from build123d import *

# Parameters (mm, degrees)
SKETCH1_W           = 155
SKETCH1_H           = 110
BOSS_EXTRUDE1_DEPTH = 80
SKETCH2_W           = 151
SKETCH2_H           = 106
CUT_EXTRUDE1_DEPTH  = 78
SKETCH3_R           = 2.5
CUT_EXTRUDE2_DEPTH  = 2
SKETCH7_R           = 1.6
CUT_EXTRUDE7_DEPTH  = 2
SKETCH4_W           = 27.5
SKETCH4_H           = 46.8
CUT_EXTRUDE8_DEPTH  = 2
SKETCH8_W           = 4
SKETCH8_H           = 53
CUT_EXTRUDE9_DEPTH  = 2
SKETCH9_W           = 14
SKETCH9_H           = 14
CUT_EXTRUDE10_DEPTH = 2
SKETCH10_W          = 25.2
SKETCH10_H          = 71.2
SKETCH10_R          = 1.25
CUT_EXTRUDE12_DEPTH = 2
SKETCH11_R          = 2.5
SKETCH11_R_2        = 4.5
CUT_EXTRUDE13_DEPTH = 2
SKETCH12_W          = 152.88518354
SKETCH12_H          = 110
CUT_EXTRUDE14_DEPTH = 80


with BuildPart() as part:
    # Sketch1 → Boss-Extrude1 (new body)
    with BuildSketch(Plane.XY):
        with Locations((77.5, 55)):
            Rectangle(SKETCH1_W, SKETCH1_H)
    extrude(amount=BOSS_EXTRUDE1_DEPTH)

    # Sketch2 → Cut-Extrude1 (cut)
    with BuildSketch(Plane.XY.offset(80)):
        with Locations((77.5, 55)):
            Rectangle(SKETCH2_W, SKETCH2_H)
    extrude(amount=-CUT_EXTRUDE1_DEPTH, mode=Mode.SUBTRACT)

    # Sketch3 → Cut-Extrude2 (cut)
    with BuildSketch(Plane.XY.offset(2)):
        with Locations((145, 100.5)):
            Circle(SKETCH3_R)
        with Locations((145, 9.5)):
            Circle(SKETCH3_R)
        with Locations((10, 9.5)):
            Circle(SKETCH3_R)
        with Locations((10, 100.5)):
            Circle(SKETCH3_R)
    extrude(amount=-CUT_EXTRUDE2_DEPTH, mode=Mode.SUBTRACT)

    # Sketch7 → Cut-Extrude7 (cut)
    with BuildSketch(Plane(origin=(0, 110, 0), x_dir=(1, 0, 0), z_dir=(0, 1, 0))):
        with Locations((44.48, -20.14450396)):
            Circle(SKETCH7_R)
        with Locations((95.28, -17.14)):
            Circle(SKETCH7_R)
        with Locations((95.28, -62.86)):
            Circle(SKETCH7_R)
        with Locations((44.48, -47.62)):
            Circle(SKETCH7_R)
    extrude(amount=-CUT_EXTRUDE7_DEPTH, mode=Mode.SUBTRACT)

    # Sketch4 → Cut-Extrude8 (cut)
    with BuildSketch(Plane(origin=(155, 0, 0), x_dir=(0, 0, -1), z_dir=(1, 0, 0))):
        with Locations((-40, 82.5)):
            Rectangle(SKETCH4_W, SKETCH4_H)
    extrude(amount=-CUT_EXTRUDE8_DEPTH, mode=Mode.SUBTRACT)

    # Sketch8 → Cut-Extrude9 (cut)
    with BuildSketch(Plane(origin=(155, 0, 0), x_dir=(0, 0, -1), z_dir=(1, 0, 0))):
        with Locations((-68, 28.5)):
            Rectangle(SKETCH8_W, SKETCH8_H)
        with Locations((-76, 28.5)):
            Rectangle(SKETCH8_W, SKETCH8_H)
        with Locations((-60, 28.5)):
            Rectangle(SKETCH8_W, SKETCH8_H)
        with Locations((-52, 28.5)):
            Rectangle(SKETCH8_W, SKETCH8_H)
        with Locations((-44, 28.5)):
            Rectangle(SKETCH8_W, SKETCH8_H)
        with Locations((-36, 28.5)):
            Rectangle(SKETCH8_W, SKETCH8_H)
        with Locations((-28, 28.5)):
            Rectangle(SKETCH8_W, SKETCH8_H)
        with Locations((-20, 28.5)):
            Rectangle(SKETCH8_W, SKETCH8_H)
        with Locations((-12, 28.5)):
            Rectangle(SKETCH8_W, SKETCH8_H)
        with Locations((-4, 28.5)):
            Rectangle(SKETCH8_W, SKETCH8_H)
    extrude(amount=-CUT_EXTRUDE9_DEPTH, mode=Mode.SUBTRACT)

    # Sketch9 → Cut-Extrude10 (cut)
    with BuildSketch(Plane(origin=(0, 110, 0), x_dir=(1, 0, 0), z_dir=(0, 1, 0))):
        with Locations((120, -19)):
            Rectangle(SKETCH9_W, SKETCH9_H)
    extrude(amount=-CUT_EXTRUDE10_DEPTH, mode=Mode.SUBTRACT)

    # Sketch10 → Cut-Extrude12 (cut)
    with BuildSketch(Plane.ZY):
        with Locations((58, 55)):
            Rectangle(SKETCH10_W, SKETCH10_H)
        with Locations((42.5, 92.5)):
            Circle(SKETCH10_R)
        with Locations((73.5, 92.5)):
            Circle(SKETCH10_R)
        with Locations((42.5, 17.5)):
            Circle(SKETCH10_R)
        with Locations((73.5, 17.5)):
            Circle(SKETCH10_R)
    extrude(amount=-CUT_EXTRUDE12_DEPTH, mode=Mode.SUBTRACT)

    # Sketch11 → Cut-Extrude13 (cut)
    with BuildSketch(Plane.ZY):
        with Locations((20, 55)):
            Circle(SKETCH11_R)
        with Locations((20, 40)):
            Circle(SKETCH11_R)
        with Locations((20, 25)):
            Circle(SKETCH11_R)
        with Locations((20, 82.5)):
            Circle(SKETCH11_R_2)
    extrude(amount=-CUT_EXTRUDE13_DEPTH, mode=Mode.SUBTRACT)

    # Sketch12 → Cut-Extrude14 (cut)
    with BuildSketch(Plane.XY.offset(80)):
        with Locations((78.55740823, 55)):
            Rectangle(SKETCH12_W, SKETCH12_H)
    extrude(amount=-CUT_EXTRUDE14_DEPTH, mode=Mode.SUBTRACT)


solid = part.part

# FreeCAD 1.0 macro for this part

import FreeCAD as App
import Part
import Sketcher
from FreeCAD import Vector
Q = App.Units.Quantity


def add_polygon(sketch, points):
    """Adds a closed chain of lines whose ends are joined by coincident constraints."""
    first, n = sketch.GeometryCount, len(points)
    for a, b in zip(points, points[1:] + points[:1]):
        sketch.addGeometry(Part.LineSegment(App.Vector(*a, 0), App.Vector(*b, 0)), False)
    for i in range(n):
        sketch.addConstraint(Sketcher.Constraint("Coincident", first + i, 2, first + (i + 1) % n, 1))

doc = App.newDocument("Part")
body = doc.addObject("PartDesign::Body", "Body")

sketch1 = body.newObject("Sketcher::SketchObject", "Sketch")
sketch1.AttachmentSupport = (doc.getObject("XY_Plane"), [""])
sketch1.MapMode = "FlatFace"
add_polygon(sketch1, [(0, 110), (0, 0), (155, 0), (155, 110)])
sketch1.addConstraint(Sketcher.Constraint("Vertical", 0))
sketch1.addConstraint(Sketcher.Constraint("Horizontal", 1))
sketch1.addConstraint(Sketcher.Constraint("Vertical", 2))
sketch1.addConstraint(Sketcher.Constraint("Horizontal", 3))
sketch1.addConstraint(Sketcher.Constraint("Coincident", 0, 2, -1, 1))
sketch1.addConstraint(Sketcher.Constraint("DistanceX", 1, 1, 1, 2, Q("155 mm")))
sketch1.addConstraint(Sketcher.Constraint("DistanceY", 0, 2, 0, 1, Q("110 mm")))
pad1 = body.newObject("PartDesign::Pad", "Pad")
pad1.Profile = sketch1
pad1.Length = 80

sketch2 = body.newObject("Sketcher::SketchObject", "Sketch001")
sketch2.AttachmentSupport = (doc.getObject("XY_Plane"), [""])
sketch2.MapMode = "FlatFace"
sketch2.AttachmentOffset = App.Placement(Vector(0, 0, 80), App.Rotation())
add_polygon(sketch2, [(2, 108), (2, 2), (153, 2), (153, 108)])
sketch2.addConstraint(Sketcher.Constraint("Vertical", 0))
sketch2.addConstraint(Sketcher.Constraint("Horizontal", 1))
sketch2.addConstraint(Sketcher.Constraint("Vertical", 2))
sketch2.addConstraint(Sketcher.Constraint("Horizontal", 3))
sketch2.addConstraint(Sketcher.Constraint("DistanceX", 1, 1, 1, 2, Q("151 mm")))
sketch2.addConstraint(Sketcher.Constraint("DistanceY", 0, 2, 0, 1, Q("106 mm")))
sketch2.addConstraint(Sketcher.Constraint("DistanceX", -1, 1, 0, 2, Q("2 mm")))
sketch2.addConstraint(Sketcher.Constraint("DistanceY", -1, 1, 0, 2, Q("2 mm")))
pocket1 = body.newObject("PartDesign::Pocket", "Pocket")
pocket1.Profile = sketch2
pocket1.Length = 78

sketch3 = body.newObject("Sketcher::SketchObject", "Sketch002")
sketch3.AttachmentSupport = (doc.getObject("XY_Plane"), [""])
sketch3.MapMode = "FlatFace"
sketch3.AttachmentOffset = App.Placement(Vector(0, 0, 2), App.Rotation())
sketch3.addGeometry(Part.Circle(Vector(145, 100.5, 0), Vector(0, 0, 1), 2.5), False)
sketch3.addGeometry(Part.Circle(Vector(145, 9.5, 0), Vector(0, 0, 1), 2.5), False)
sketch3.addGeometry(Part.Circle(Vector(10, 9.5, 0), Vector(0, 0, 1), 2.5), False)
sketch3.addGeometry(Part.Circle(Vector(10, 100.5, 0), Vector(0, 0, 1), 2.5), False)
sketch3.addConstraint(Sketcher.Constraint("Equal", 0, 1))
sketch3.addConstraint(Sketcher.Constraint("Equal", 1, 2))
sketch3.addConstraint(Sketcher.Constraint("Equal", 2, 3))
sketch3.addConstraint(Sketcher.Constraint("Horizontal", 1, 3, 2, 3))
sketch3.addConstraint(Sketcher.Constraint("Horizontal", 0, 3, 3, 3))
sketch3.addConstraint(Sketcher.Constraint("Vertical", 0, 3, 1, 3))
sketch3.addConstraint(Sketcher.Constraint("Vertical", 2, 3, 3, 3))
sketch3.addConstraint(Sketcher.Constraint("Diameter", 0, Q("5 mm")))
sketch3.addConstraint(Sketcher.Constraint("DistanceX", -1, 1, 0, 3, Q("145 mm")))
sketch3.addConstraint(Sketcher.Constraint("DistanceX", -1, 1, 2, 3, Q("10 mm")))
sketch3.addConstraint(Sketcher.Constraint("DistanceY", 1, 3, 0, 3, Q("91 mm")))
sketch3.addConstraint(Sketcher.Constraint("DistanceY", -1, 1, 0, 3, Q("100.5 mm")))
pocket2 = body.newObject("PartDesign::Pocket", "Pocket001")
pocket2.Profile = sketch3
pocket2.Length = 2

sketch4 = body.newObject("Sketcher::SketchObject", "Sketch003")
sketch4.AttachmentSupport = (doc.getObject("XZ_Plane"), [""])
sketch4.MapMode = "FlatFace"
sketch4.AttachmentOffset = App.Placement(Vector(0, 0, -110), App.Rotation())
sketch4.addGeometry(Part.Circle(Vector(44.5, 20.1, 0), Vector(0, 0, 1), 1.6), False)
sketch4.addGeometry(Part.Circle(Vector(95.3, 17.1, 0), Vector(0, 0, 1), 1.6), False)
sketch4.addGeometry(Part.Circle(Vector(95.3, 62.9, 0), Vector(0, 0, 1), 1.6), False)
sketch4.addGeometry(Part.Circle(Vector(44.5, 47.6, 0), Vector(0, 0, 1), 1.6), False)
sketch4.addConstraint(Sketcher.Constraint("Equal", 0, 1))
sketch4.addConstraint(Sketcher.Constraint("Equal", 1, 2))
sketch4.addConstraint(Sketcher.Constraint("Equal", 2, 3))
sketch4.addConstraint(Sketcher.Constraint("Vertical", 1, 3, 2, 3))
sketch4.addConstraint(Sketcher.Constraint("Vertical", 0, 3, 3, 3))
sketch4.addConstraint(Sketcher.Constraint("Diameter", 0, Q("3.2 mm")))
sketch4.addConstraint(Sketcher.Constraint("DistanceX", 0, 3, 1, 3, Q("50.8 mm")))
sketch4.addConstraint(Sketcher.Constraint("DistanceX", -1, 1, 0, 3, Q("44.48 mm")))
sketch4.addConstraint(Sketcher.Constraint("DistanceY", -1, 1, 1, 3, Q("17.14 mm")))
sketch4.addConstraint(Sketcher.Constraint("DistanceY", -1, 1, 2, 3, Q("62.86 mm")))
sketch4.addConstraint(Sketcher.Constraint("DistanceY", -1, 1, 3, 3, Q("47.62 mm")))
sketch4.addConstraint(Sketcher.Constraint("DistanceY", -1, 1, 0, 3, Q("20.144504 mm")))
pocket3 = body.newObject("PartDesign::Pocket", "Pocket002")
pocket3.Profile = sketch4
pocket3.Length = 2
pocket3.Reversed = True

sketch5 = body.newObject("Sketcher::SketchObject", "Sketch004")
sketch5.AttachmentSupport = (doc.getObject("YZ_Plane"), [""])
sketch5.MapMode = "FlatFace"
sketch5.AttachmentOffset = App.Placement(Vector(0, 0, 155), App.Rotation())
add_polygon(sketch5, [(106, 54), (59, 54), (59, 26), (106, 26)])
sketch5.addConstraint(Sketcher.Constraint("Horizontal", 0))
sketch5.addConstraint(Sketcher.Constraint("Vertical", 1))
sketch5.addConstraint(Sketcher.Constraint("Horizontal", 2))
sketch5.addConstraint(Sketcher.Constraint("Vertical", 3))
sketch5.addConstraint(Sketcher.Constraint("DistanceX", 0, 2, 0, 1, Q("46.8 mm")))
sketch5.addConstraint(Sketcher.Constraint("DistanceY", 1, 2, 1, 1, Q("27.5 mm")))
sketch5.addConstraint(Sketcher.Constraint("DistanceX", -1, 1, 0, 2, Q("59.1 mm")))
sketch5.addConstraint(Sketcher.Constraint("DistanceY", -1, 1, 0, 2, Q("53.75 mm")))
pocket4 = body.newObject("PartDesign::Pocket", "Pocket003")
pocket4.Profile = sketch5
pocket4.Length = 2

sketch6 = body.newObject("Sketcher::SketchObject", "Sketch005")
sketch6.AttachmentSupport = (doc.getObject("YZ_Plane"), [""])
sketch6.MapMode = "FlatFace"
sketch6.AttachmentOffset = App.Placement(Vector(0, 0, 155), App.Rotation())
add_polygon(sketch6, [(55, 70), (2, 70), (2, 66), (55, 66)])
add_polygon(sketch6, [(55, 78), (2, 78), (2, 74), (55, 74)])
add_polygon(sketch6, [(55, 62), (2, 62), (2, 58), (55, 58)])
add_polygon(sketch6, [(55, 54), (2, 54), (2, 50), (55, 50)])
add_polygon(sketch6, [(55, 46), (2, 46), (2, 42), (55, 42)])
add_polygon(sketch6, [(55, 38), (2, 38), (2, 34), (55, 34)])
add_polygon(sketch6, [(55, 30), (2, 30), (2, 26), (55, 26)])
add_polygon(sketch6, [(55, 22), (2, 22), (2, 18), (55, 18)])
add_polygon(sketch6, [(55, 14), (2, 14), (2, 10), (55, 10)])
add_polygon(sketch6, [(55, 6), (2, 6), (2, 2), (55, 2)])
sketch6.addConstraint(Sketcher.Constraint("Horizontal", 0))
sketch6.addConstraint(Sketcher.Constraint("Vertical", 1))
sketch6.addConstraint(Sketcher.Constraint("Horizontal", 2))
sketch6.addConstraint(Sketcher.Constraint("Vertical", 3))
sketch6.addConstraint(Sketcher.Constraint("Horizontal", 4))
sketch6.addConstraint(Sketcher.Constraint("Vertical", 5))
sketch6.addConstraint(Sketcher.Constraint("Horizontal", 6))
sketch6.addConstraint(Sketcher.Constraint("Vertical", 7))
sketch6.addConstraint(Sketcher.Constraint("Horizontal", 8))
sketch6.addConstraint(Sketcher.Constraint("Vertical", 9))
sketch6.addConstraint(Sketcher.Constraint("Horizontal", 10))
sketch6.addConstraint(Sketcher.Constraint("Vertical", 11))
sketch6.addConstraint(Sketcher.Constraint("Horizontal", 12))
sketch6.addConstraint(Sketcher.Constraint("Vertical", 13))
sketch6.addConstraint(Sketcher.Constraint("Horizontal", 14))
sketch6.addConstraint(Sketcher.Constraint("Vertical", 15))
sketch6.addConstraint(Sketcher.Constraint("Horizontal", 16))
sketch6.addConstraint(Sketcher.Constraint("Vertical", 17))
sketch6.addConstraint(Sketcher.Constraint("Horizontal", 18))
sketch6.addConstraint(Sketcher.Constraint("Vertical", 19))
sketch6.addConstraint(Sketcher.Constraint("Horizontal", 20))
sketch6.addConstraint(Sketcher.Constraint("Vertical", 21))
sketch6.addConstraint(Sketcher.Constraint("Horizontal", 22))
sketch6.addConstraint(Sketcher.Constraint("Vertical", 23))
sketch6.addConstraint(Sketcher.Constraint("Horizontal", 24))
sketch6.addConstraint(Sketcher.Constraint("Vertical", 25))
sketch6.addConstraint(Sketcher.Constraint("Horizontal", 26))
sketch6.addConstraint(Sketcher.Constraint("Vertical", 27))
sketch6.addConstraint(Sketcher.Constraint("Horizontal", 28))
sketch6.addConstraint(Sketcher.Constraint("Vertical", 29))
sketch6.addConstraint(Sketcher.Constraint("Horizontal", 30))
sketch6.addConstraint(Sketcher.Constraint("Vertical", 31))
sketch6.addConstraint(Sketcher.Constraint("Horizontal", 32))
sketch6.addConstraint(Sketcher.Constraint("Vertical", 33))
sketch6.addConstraint(Sketcher.Constraint("Horizontal", 34))
sketch6.addConstraint(Sketcher.Constraint("Vertical", 35))
sketch6.addConstraint(Sketcher.Constraint("Horizontal", 36))
sketch6.addConstraint(Sketcher.Constraint("Vertical", 37))
sketch6.addConstraint(Sketcher.Constraint("Horizontal", 38))
sketch6.addConstraint(Sketcher.Constraint("Vertical", 39))
sketch6.addConstraint(Sketcher.Constraint("Vertical", 1, 2, 4, 2))
sketch6.addConstraint(Sketcher.Constraint("Vertical", 3, 2, 6, 2))
sketch6.addConstraint(Sketcher.Constraint("Vertical", 5, 2, 8, 2))
sketch6.addConstraint(Sketcher.Constraint("Vertical", 7, 2, 10, 2))
sketch6.addConstraint(Sketcher.Constraint("Vertical", 9, 2, 12, 2))
sketch6.addConstraint(Sketcher.Constraint("Vertical", 11, 2, 14, 2))
sketch6.addConstraint(Sketcher.Constraint("Vertical", 13, 2, 16, 2))
sketch6.addConstraint(Sketcher.Constraint("Vertical", 15, 2, 18, 2))
sketch6.addConstraint(Sketcher.Constraint("Vertical", 17, 2, 20, 2))
sketch6.addConstraint(Sketcher.Constraint("Vertical", 19, 2, 22, 2))
sketch6.addConstraint(Sketcher.Constraint("Vertical", 21, 2, 24, 2))
sketch6.addConstraint(Sketcher.Constraint("Vertical", 23, 2, 26, 2))
sketch6.addConstraint(Sketcher.Constraint("Vertical", 25, 2, 28, 2))
sketch6.addConstraint(Sketcher.Constraint("Vertical", 27, 2, 30, 2))
sketch6.addConstraint(Sketcher.Constraint("Vertical", 29, 2, 32, 2))
sketch6.addConstraint(Sketcher.Constraint("Vertical", 31, 2, 34, 2))
sketch6.addConstraint(Sketcher.Constraint("Vertical", 33, 2, 36, 2))
sketch6.addConstraint(Sketcher.Constraint("Vertical", 35, 2, 38, 2))
sketch6.addConstraint(Sketcher.Constraint("Equal", 3, 5))
sketch6.addConstraint(Sketcher.Constraint("Equal", 7, 9))
sketch6.addConstraint(Sketcher.Constraint("Equal", 11, 13))
sketch6.addConstraint(Sketcher.Constraint("Equal", 15, 17))
sketch6.addConstraint(Sketcher.Constraint("Equal", 19, 21))
sketch6.addConstraint(Sketcher.Constraint("Equal", 23, 25))
sketch6.addConstraint(Sketcher.Constraint("Equal", 27, 29))
sketch6.addConstraint(Sketcher.Constraint("Equal", 31, 33))
sketch6.addConstraint(Sketcher.Constraint("Equal", 35, 37))
sketch6.addConstraint(Sketcher.Constraint("DistanceX", 0, 2, 0, 1, Q("53 mm")))
sketch6.addConstraint(Sketcher.Constraint("DistanceY", 1, 2, 1, 1, Q("4 mm")))
sketch6.addConstraint(Sketcher.Constraint("DistanceX", -1, 1, 0, 2, Q("2 mm")))
sketch6.addConstraint(Sketcher.Constraint("DistanceY", -1, 1, 0, 2, Q("70 mm")))
sketch6.addConstraint(Sketcher.Constraint("DistanceY", -1, 1, 4, 2, Q("78 mm")))
sketch6.addConstraint(Sketcher.Constraint("DistanceY", -1, 1, 8, 2, Q("62 mm")))
sketch6.addConstraint(Sketcher.Constraint("DistanceY", -1, 1, 12, 2, Q("54 mm")))
sketch6.addConstraint(Sketcher.Constraint("DistanceY", -1, 1, 16, 2, Q("46 mm")))
sketch6.addConstraint(Sketcher.Constraint("DistanceY", -1, 1, 20, 2, Q("38 mm")))
sketch6.addConstraint(Sketcher.Constraint("DistanceY", -1, 1, 24, 2, Q("30 mm")))
sketch6.addConstraint(Sketcher.Constraint("DistanceY", -1, 1, 28, 2, Q("22 mm")))
sketch6.addConstraint(Sketcher.Constraint("DistanceY", -1, 1, 32, 2, Q("14 mm")))
sketch6.addConstraint(Sketcher.Constraint("DistanceY", -1, 1, 36, 2, Q("6 mm")))
pocket5 = body.newObject("PartDesign::Pocket", "Pocket004")
pocket5.Profile = sketch6
pocket5.Length = 2

sketch7 = body.newObject("Sketcher::SketchObject", "Sketch006")
sketch7.AttachmentSupport = (doc.getObject("XZ_Plane"), [""])
sketch7.MapMode = "FlatFace"
sketch7.AttachmentOffset = App.Placement(Vector(0, 0, -110), App.Rotation())
add_polygon(sketch7, [(113, 12), (113, 26), (127, 26), (127, 12)])
sketch7.addConstraint(Sketcher.Constraint("Vertical", 0))
sketch7.addConstraint(Sketcher.Constraint("Horizontal", 1))
sketch7.addConstraint(Sketcher.Constraint("Vertical", 2))
sketch7.addConstraint(Sketcher.Constraint("Horizontal", 3))
sketch7.addConstraint(Sketcher.Constraint("Equal", 3, 0))
sketch7.addConstraint(Sketcher.Constraint("DistanceX", 1, 1, 1, 2, Q("14 mm")))
sketch7.addConstraint(Sketcher.Constraint("DistanceX", -1, 1, 0, 2, Q("113 mm")))
sketch7.addConstraint(Sketcher.Constraint("DistanceY", -1, 1, 0, 2, Q("26 mm")))
pocket6 = body.newObject("PartDesign::Pocket", "Pocket005")
pocket6.Profile = sketch7
pocket6.Length = 2
pocket6.Reversed = True

sketch8 = body.newObject("Sketcher::SketchObject", "Sketch007")
sketch8.AttachmentSupport = (doc.getObject("YZ_Plane"), [""])
sketch8.MapMode = "FlatFace"
add_polygon(sketch8, [(90.6, 45.4), (19.4, 45.4), (19.4, 70.6), (90.6, 70.6)])
sketch8.addGeometry(Part.Circle(Vector(92.5, 42.5, 0), Vector(0, 0, 1), 1.2), False)
sketch8.addGeometry(Part.Circle(Vector(92.5, 73.5, 0), Vector(0, 0, 1), 1.2), False)
sketch8.addGeometry(Part.Circle(Vector(17.5, 42.5, 0), Vector(0, 0, 1), 1.2), False)
sketch8.addGeometry(Part.Circle(Vector(17.5, 73.5, 0), Vector(0, 0, 1), 1.2), False)
sketch8.addConstraint(Sketcher.Constraint("Horizontal", 0))
sketch8.addConstraint(Sketcher.Constraint("Vertical", 1))
sketch8.addConstraint(Sketcher.Constraint("Horizontal", 2))
sketch8.addConstraint(Sketcher.Constraint("Vertical", 3))
sketch8.addConstraint(Sketcher.Constraint("Equal", 4, 5))
sketch8.addConstraint(Sketcher.Constraint("Equal", 5, 6))
sketch8.addConstraint(Sketcher.Constraint("Equal", 6, 7))
sketch8.addConstraint(Sketcher.Constraint("Horizontal", 4, 3, 6, 3))
sketch8.addConstraint(Sketcher.Constraint("Horizontal", 5, 3, 7, 3))
sketch8.addConstraint(Sketcher.Constraint("Vertical", 4, 3, 5, 3))
sketch8.addConstraint(Sketcher.Constraint("Vertical", 6, 3, 7, 3))
sketch8.addConstraint(Sketcher.Constraint("Diameter", 4, Q("2.5 mm")))
sketch8.addConstraint(Sketcher.Constraint("DistanceX", 0, 2, 0, 1, Q("71.2 mm")))
sketch8.addConstraint(Sketcher.Constraint("DistanceY", 1, 1, 1, 2, Q("25.2 mm")))
sketch8.addConstraint(Sketcher.Constraint("DistanceY", 4, 3, 5, 3, Q("31 mm")))
sketch8.addConstraint(Sketcher.Constraint("DistanceX", 6, 3, 4, 3, Q("75 mm")))
sketch8.addConstraint(Sketcher.Constraint("DistanceX", -1, 1, 4, 3, Q("92.5 mm")))
sketch8.addConstraint(Sketcher.Constraint("DistanceY", -1, 1, 4, 3, Q("42.5 mm")))
sketch8.addConstraint(Sketcher.Constraint("DistanceX", -1, 1, 0, 2, Q("19.4 mm")))
sketch8.addConstraint(Sketcher.Constraint("DistanceY", -1, 1, 0, 2, Q("45.4 mm")))
pocket7 = body.newObject("PartDesign::Pocket", "Pocket006")
pocket7.Profile = sketch8
pocket7.Length = 2
pocket7.Reversed = True

sketch9 = body.newObject("Sketcher::SketchObject", "Sketch008")
sketch9.AttachmentSupport = (doc.getObject("YZ_Plane"), [""])
sketch9.MapMode = "FlatFace"
sketch9.addGeometry(Part.Circle(Vector(55, 20, 0), Vector(0, 0, 1), 2.5), False)
sketch9.addGeometry(Part.Circle(Vector(40, 20, 0), Vector(0, 0, 1), 2.5), False)
sketch9.addGeometry(Part.Circle(Vector(25, 20, 0), Vector(0, 0, 1), 2.5), False)
sketch9.addGeometry(Part.Circle(Vector(82.5, 20, 0), Vector(0, 0, 1), 4.5), False)
sketch9.addConstraint(Sketcher.Constraint("Equal", 0, 1))
sketch9.addConstraint(Sketcher.Constraint("Equal", 1, 2))
sketch9.addConstraint(Sketcher.Constraint("Horizontal", 0, 3, 1, 3))
sketch9.addConstraint(Sketcher.Constraint("Horizontal", 1, 3, 2, 3))
sketch9.addConstraint(Sketcher.Constraint("Horizontal", 2, 3, 3, 3))
sketch9.addConstraint(Sketcher.Constraint("Diameter", 0, Q("5 mm")))
sketch9.addConstraint(Sketcher.Constraint("Diameter", 3, Q("9 mm")))
sketch9.addConstraint(Sketcher.Constraint("DistanceX", -1, 1, 0, 3, Q("55 mm")))
sketch9.addConstraint(Sketcher.Constraint("DistanceY", -1, 1, 0, 3, Q("20 mm")))
sketch9.addConstraint(Sketcher.Constraint("DistanceX", -1, 1, 1, 3, Q("40 mm")))
sketch9.addConstraint(Sketcher.Constraint("DistanceX", -1, 1, 2, 3, Q("25 mm")))
sketch9.addConstraint(Sketcher.Constraint("DistanceX", -1, 1, 3, 3, Q("82.5 mm")))
pocket8 = body.newObject("PartDesign::Pocket", "Pocket007")
pocket8.Profile = sketch9
pocket8.Length = 2
pocket8.Reversed = True

sketch10 = body.newObject("Sketcher::SketchObject", "Sketch009")
sketch10.AttachmentSupport = (doc.getObject("XY_Plane"), [""])
sketch10.MapMode = "FlatFace"
sketch10.AttachmentOffset = App.Placement(Vector(0, 0, 80), App.Rotation())
add_polygon(sketch10, [(2, 110), (2, 0), (155, 0), (155, 110)])
sketch10.addConstraint(Sketcher.Constraint("Vertical", 0))
sketch10.addConstraint(Sketcher.Constraint("Horizontal", 1))
sketch10.addConstraint(Sketcher.Constraint("Vertical", 2))
sketch10.addConstraint(Sketcher.Constraint("Horizontal", 3))
sketch10.addConstraint(Sketcher.Constraint("PointOnObject", 0, 2, -1))
sketch10.addConstraint(Sketcher.Constraint("DistanceY", 0, 2, 0, 1, Q("110 mm")))
sketch10.addConstraint(Sketcher.Constraint("DistanceX", -1, 1, 1, 2, Q("155 mm")))
sketch10.addConstraint(Sketcher.Constraint("DistanceX", 1, 1, 1, 2, Q("152.885184 mm")))
pocket9 = body.newObject("PartDesign::Pocket", "Pocket008")
pocket9.Profile = sketch10
pocket9.Length = 80

doc.recompute()
